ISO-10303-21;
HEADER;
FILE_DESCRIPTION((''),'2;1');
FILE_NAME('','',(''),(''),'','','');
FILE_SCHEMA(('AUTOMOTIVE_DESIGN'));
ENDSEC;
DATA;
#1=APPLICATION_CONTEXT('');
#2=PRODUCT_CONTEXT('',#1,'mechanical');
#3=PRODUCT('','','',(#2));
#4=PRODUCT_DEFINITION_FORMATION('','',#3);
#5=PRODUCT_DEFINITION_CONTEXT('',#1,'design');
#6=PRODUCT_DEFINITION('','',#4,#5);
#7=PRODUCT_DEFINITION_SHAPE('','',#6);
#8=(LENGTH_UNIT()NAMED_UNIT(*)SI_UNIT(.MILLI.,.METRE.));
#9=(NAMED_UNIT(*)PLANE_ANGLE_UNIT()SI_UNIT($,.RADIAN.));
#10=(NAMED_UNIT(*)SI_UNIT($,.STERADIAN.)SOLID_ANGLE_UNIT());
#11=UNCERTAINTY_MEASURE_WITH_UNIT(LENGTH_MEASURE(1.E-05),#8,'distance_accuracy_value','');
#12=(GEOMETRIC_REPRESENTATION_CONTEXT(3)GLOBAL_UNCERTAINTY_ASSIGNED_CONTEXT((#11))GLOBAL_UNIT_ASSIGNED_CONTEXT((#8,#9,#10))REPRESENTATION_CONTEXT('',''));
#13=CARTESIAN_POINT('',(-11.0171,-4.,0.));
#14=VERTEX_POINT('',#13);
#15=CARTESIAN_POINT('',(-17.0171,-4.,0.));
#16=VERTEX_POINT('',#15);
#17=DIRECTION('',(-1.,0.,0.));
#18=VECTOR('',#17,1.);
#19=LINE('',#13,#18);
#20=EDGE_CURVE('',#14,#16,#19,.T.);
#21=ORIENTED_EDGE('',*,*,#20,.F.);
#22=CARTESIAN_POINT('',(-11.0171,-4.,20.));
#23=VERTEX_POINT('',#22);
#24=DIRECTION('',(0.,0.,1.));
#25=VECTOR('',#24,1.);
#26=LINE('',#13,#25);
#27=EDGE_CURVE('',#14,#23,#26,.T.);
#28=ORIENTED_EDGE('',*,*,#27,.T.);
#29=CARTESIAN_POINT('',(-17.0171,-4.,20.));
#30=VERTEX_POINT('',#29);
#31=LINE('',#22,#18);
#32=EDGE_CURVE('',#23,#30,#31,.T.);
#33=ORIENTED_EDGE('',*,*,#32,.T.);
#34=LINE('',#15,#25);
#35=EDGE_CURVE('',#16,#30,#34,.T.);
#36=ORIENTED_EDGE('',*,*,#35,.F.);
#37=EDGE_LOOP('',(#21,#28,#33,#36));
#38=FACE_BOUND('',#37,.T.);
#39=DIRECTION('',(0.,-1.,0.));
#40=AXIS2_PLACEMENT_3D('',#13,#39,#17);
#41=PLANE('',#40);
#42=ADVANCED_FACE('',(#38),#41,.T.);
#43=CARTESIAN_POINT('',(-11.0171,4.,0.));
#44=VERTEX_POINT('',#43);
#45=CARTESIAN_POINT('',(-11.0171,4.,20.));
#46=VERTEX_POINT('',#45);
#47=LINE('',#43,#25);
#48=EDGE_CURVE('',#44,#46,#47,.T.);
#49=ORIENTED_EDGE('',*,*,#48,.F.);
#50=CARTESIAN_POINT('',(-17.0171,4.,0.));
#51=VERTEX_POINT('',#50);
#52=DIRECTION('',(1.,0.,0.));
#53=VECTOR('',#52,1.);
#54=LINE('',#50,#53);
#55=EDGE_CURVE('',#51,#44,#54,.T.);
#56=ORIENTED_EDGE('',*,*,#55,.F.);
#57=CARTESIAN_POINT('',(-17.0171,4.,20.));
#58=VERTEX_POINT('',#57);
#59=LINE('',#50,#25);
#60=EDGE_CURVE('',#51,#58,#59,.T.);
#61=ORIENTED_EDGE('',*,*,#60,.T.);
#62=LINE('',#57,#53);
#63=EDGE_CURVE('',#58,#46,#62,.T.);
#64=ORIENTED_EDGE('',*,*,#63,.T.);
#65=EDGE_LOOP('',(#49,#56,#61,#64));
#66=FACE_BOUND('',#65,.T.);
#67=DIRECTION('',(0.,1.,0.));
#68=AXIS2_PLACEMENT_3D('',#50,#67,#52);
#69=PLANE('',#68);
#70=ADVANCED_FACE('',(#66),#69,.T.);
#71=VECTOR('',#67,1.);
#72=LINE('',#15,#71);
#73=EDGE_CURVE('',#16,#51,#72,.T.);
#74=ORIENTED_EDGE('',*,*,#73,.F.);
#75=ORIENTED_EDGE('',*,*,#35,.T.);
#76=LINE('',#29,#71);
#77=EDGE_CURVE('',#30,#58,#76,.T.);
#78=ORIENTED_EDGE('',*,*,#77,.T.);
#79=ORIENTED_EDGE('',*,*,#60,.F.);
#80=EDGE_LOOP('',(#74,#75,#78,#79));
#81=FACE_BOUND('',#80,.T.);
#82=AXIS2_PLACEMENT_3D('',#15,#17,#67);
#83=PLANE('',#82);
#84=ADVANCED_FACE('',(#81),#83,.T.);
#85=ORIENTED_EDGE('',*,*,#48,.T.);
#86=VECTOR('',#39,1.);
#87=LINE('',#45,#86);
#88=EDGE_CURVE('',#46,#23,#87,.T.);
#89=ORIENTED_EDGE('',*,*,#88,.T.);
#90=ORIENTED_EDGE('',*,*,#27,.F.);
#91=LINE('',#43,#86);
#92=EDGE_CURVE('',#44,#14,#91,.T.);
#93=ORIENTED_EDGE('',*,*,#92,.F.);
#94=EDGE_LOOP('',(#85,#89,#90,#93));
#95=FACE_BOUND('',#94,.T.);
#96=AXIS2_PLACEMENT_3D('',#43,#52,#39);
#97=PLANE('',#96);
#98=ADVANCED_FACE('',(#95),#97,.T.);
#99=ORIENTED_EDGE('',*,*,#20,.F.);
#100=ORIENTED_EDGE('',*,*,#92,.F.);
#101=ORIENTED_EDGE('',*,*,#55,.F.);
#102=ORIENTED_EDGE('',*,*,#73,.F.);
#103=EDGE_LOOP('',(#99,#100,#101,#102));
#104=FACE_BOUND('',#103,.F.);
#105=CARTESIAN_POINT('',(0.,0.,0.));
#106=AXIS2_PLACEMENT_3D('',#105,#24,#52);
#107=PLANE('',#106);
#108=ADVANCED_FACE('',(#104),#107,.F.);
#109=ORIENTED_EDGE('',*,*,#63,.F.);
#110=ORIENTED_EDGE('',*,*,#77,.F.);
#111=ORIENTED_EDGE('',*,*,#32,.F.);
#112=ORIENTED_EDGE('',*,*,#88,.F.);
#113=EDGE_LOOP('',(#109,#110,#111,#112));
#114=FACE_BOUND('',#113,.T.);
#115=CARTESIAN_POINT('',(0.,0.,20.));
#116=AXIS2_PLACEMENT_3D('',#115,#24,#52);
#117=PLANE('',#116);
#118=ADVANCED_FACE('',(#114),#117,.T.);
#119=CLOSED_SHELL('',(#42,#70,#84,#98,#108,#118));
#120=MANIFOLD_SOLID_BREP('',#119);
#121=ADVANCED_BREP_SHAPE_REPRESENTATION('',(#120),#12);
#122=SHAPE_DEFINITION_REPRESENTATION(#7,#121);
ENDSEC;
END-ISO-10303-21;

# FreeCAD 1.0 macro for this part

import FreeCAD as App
import Part
import Sketcher
from FreeCAD import Vector


def add_polygon(sketch, points):
    """Adds a closed chain of lines whose ends are joined by coincident constraints."""
    first, n = sketch.GeometryCount, len(points)
    for a, b in zip(points, points[1:] + points[:1]):
        sketch.addGeometry(Part.LineSegment(App.Vector(*a, 0), App.Vector(*b, 0)), False)
    for i in range(n):
        sketch.addConstraint(Sketcher.Constraint("Coincident", first + i, 2, first + (i + 1) % n, 1))

doc = App.newDocument("Part")
body = doc.addObject("PartDesign::Body", "Body")

# Sketch on XY plane
sketch1 = body.newObject("Sketcher::SketchObject", "Sketch")
sketch1.AttachmentSupport = (doc.getObject("XY_Plane"), [""])
sketch1.MapMode = "FlatFace"
add_polygon(sketch1, [(-11, 4), (-17, 4), (-17, -4), (-11, -4)])  # lines 0-3
sketch1.addConstraint(Sketcher.Constraint("Horizontal", 0))
sketch1.addConstraint(Sketcher.Constraint("Vertical", 1))
sketch1.addConstraint(Sketcher.Constraint("Horizontal", 2))
sketch1.addConstraint(Sketcher.Constraint("Vertical", 3))
sketch1.addConstraint(Sketcher.Constraint("DistanceX", 0, 2, 0, 1, 6.0))
sketch1.addConstraint(Sketcher.Constraint("DistanceY", 1, 2, 1, 1, 8.0))
sketch1.addConstraint(Sketcher.Constraint("DistanceY", -1, 1, 0, 2, 4.0))
sketch1.addConstraint(Sketcher.Constraint("DistanceX", 0, 2, -1, 1, 17.017))
pad1 = body.newObject("PartDesign::Pad", "Pad")
pad1.Profile = sketch1
pad1.Length = 20

doc.recompute()
